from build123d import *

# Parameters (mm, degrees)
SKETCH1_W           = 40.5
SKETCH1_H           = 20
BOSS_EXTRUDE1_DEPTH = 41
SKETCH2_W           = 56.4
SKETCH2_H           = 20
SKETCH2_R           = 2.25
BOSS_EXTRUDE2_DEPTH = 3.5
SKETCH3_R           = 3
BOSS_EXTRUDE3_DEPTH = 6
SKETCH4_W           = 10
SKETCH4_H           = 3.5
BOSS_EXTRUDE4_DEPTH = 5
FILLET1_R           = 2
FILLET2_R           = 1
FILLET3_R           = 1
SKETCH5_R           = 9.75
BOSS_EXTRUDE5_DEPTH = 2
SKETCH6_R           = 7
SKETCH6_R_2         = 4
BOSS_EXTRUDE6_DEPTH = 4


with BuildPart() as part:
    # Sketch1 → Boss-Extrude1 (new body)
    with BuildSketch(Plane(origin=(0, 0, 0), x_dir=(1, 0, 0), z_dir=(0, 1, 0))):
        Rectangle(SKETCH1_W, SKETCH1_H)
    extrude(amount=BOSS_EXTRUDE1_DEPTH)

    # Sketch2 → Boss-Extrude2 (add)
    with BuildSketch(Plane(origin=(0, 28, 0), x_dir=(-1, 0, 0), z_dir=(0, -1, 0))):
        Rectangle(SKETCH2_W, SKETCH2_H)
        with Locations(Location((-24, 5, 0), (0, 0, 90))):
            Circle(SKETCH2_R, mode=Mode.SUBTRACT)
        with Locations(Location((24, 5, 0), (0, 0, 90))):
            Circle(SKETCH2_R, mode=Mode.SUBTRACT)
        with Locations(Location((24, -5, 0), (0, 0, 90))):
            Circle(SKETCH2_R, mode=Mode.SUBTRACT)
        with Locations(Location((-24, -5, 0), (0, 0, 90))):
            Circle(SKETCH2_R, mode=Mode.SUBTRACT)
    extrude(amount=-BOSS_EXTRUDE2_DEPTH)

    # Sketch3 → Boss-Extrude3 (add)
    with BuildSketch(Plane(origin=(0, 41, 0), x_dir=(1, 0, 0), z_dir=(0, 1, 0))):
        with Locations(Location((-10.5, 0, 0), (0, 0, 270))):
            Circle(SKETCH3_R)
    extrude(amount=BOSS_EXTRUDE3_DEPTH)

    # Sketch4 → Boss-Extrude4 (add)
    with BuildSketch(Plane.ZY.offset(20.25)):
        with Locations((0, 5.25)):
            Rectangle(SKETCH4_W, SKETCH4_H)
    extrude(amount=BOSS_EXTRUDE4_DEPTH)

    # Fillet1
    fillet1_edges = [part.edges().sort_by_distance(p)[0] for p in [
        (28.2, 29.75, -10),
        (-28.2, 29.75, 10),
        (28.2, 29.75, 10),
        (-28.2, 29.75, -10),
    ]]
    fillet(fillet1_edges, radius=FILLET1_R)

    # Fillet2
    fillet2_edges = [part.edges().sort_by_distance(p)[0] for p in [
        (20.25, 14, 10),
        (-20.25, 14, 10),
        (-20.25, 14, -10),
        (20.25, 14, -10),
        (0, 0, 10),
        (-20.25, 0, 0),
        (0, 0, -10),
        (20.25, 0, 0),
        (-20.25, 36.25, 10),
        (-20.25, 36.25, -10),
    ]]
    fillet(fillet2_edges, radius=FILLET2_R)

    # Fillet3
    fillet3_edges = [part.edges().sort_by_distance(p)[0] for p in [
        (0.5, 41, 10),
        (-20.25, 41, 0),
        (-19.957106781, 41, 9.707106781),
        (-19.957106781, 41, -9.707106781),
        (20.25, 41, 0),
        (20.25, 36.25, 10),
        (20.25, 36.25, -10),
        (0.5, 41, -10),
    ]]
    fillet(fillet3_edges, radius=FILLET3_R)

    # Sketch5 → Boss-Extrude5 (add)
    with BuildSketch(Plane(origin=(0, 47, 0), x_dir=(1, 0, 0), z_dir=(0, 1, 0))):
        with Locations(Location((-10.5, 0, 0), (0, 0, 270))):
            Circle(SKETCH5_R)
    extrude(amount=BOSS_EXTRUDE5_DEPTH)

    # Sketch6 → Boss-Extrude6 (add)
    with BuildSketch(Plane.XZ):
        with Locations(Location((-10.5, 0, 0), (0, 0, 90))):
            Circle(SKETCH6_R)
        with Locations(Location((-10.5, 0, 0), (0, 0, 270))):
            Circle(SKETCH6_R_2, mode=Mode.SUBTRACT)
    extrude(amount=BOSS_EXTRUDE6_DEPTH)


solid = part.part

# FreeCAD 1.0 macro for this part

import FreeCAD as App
import Part
import Sketcher

V = App.Vector


def edges_at(feature, points):
    """Names of the edges that pass closest to the given points."""
    edges = feature.Shape.Edges
    near = lambda p: min(range(len(edges)), key=lambda i: edges[i].distToShape(Part.Vertex(*p))[0])
    return sorted({f"Edge{near(p) + 1}" for p in points})

doc = App.newDocument("Part")
body = doc.addObject("PartDesign::Body", "Body")

# Sketch on XZ plane
sketch1 = doc.addObject("Sketcher::SketchObject", "Sketch")
body.addObject(sketch1)
sketch1.AttachmentSupport = (doc.XZ_Plane, [""])
sketch1.MapMode = "FlatFace"
sketch1.addGeometry([
    Part.LineSegment(V(-20, -10, 0), V(-20, 10, 0)),
    Part.LineSegment(V(-20, 10, 0), V(20, 10, 0)),
    Part.LineSegment(V(20, 10, 0), V(20, -10, 0)),
    Part.LineSegment(V(20, -10, 0), V(-20, -10, 0)),
], False)
sketch1.addConstraint([
    Sketcher.Constraint("Coincident", 0, 2, 1, 1),
    Sketcher.Constraint("Coincident", 1, 2, 2, 1),
    Sketcher.Constraint("Coincident", 2, 2, 3, 1),
    Sketcher.Constraint("Coincident", 3, 2, 0, 1),
    Sketcher.Constraint("Vertical", 0),
    Sketcher.Constraint("Horizontal", 1),
    Sketcher.Constraint("Vertical", 2),
    Sketcher.Constraint("Horizontal", 3),
    Sketcher.Constraint("Symmetric", 0, 2, 2, 2, -1, 1),
    Sketcher.Constraint("DistanceY", 0, 1, 0, 2, 20.0),
    Sketcher.Constraint("DistanceX", 1, 1, 1, 2, 40.5),
])
pad1 = doc.addObject("PartDesign::Pad", "Pad")
body.addObject(pad1)
pad1.Profile = sketch1
pad1.Length = 41
pad1.Reversed = True

# Sketch on XZ plane
sketch2 = doc.addObject("Sketcher::SketchObject", "Sketch001")
body.addObject(sketch2)
sketch2.AttachmentSupport = (doc.XZ_Plane, [""])
sketch2.MapMode = "FlatFace"
sketch2.AttachmentOffset = App.Placement(V(0, 0, -28), App.Rotation())
sketch2.addGeometry([
    Part.LineSegment(V(28.2, -10, 0), V(28.2, 10, 0)),  # 0
    Part.LineSegment(V(28.2, 10, 0), V(-28.2, 10, 0)),  # 1
    Part.LineSegment(V(-28.2, 10, 0), V(-28.2, -10, 0)),  # 2
    Part.LineSegment(V(-28.2, -10, 0), V(28.2, -10, 0)),  # 3
    Part.Circle(V(24, 5, 0), V(0, 0, 1), 2.2),  # 4
    Part.Circle(V(-24, 5, 0), V(0, 0, 1), 2.2),  # 5
    Part.Circle(V(24, -5, 0), V(0, 0, 1), 2.2),  # 6
    Part.Circle(V(-24, -5, 0), V(0, 0, 1), 2.2),  # 7
], False)
sketch2.addConstraint([
    Sketcher.Constraint("Coincident", 0, 2, 1, 1),
    Sketcher.Constraint("Coincident", 1, 2, 2, 1),
    Sketcher.Constraint("Coincident", 2, 2, 3, 1),
    Sketcher.Constraint("Coincident", 3, 2, 0, 1),
    Sketcher.Constraint("Vertical", 0),
    Sketcher.Constraint("Horizontal", 1),
    Sketcher.Constraint("Vertical", 2),
    Sketcher.Constraint("Horizontal", 3),
    Sketcher.Constraint("Equal", 4, 5),
    Sketcher.Constraint("Equal", 5, 6),
    Sketcher.Constraint("Equal", 6, 7),
    Sketcher.Constraint("Symmetric", 5, 3, 6, 3, -1, 1),
    Sketcher.Constraint("Symmetric", 4, 3, 7, 3, -1, 1),
    Sketcher.Constraint("Symmetric", 0, 2, 2, 2, -1, 1),
    Sketcher.Constraint("Symmetric", 4, 3, 5, 3, -2),
    Sketcher.Constraint("Diameter", 4, 4.5),
    Sketcher.Constraint("DistanceY", 0, 1, 0, 2, 20.0),
    Sketcher.Constraint("DistanceX", 1, 2, 1, 1, 56.4),
    Sketcher.Constraint("DistanceX", -1, 1, 4, 3, 24.0),
    Sketcher.Constraint("DistanceY", -1, 1, 4, 3, 5.0),
])
pad2 = doc.addObject("PartDesign::Pad", "Pad001")
body.addObject(pad2)
pad2.Profile = sketch2
pad2.Length = 3.5
pad2.Reversed = True

# Sketch on XZ plane
sketch3 = doc.addObject("Sketcher::SketchObject", "Sketch002")
body.addObject(sketch3)
sketch3.AttachmentSupport = (doc.XZ_Plane, [""])
sketch3.MapMode = "FlatFace"
sketch3.AttachmentOffset = App.Placement(V(0, 0, -41), App.Rotation())
sketch3.addGeometry(Part.Circle(V(-10.5, 0, 0), V(0, 0, 1), 3), False)
sketch3.addConstraint([
    Sketcher.Constraint("PointOnObject", 0, 3, -1),
    Sketcher.Constraint("Diameter", 0, 6.0),
    Sketcher.Constraint("DistanceX", 0, 3, -1, 1, 10.5),
])
pad3 = doc.addObject("PartDesign::Pad", "Pad002")
body.addObject(pad3)
pad3.Profile = sketch3
pad3.Length = 6
pad3.Reversed = True

# Sketch on YZ plane
sketch4 = doc.addObject("Sketcher::SketchObject", "Sketch003")
body.addObject(sketch4)
sketch4.AttachmentSupport = (doc.YZ_Plane, [""])
sketch4.MapMode = "FlatFace"
sketch4.AttachmentOffset = App.Placement(V(0, 0, -20.25), App.Rotation())
sketch4.addGeometry([
    Part.LineSegment(V(7, -5, 0), V(3.5, -5, 0)),
    Part.LineSegment(V(3.5, -5, 0), V(3.5, 5, 0)),
    Part.LineSegment(V(3.5, 5, 0), V(7, 5, 0)),
    Part.LineSegment(V(7, 5, 0), V(7, -5, 0)),
], False)
sketch4.addConstraint([
    Sketcher.Constraint("Coincident", 0, 2, 1, 1),
    Sketcher.Constraint("Coincident", 1, 2, 2, 1),
    Sketcher.Constraint("Coincident", 2, 2, 3, 1),
    Sketcher.Constraint("Coincident", 3, 2, 0, 1),
    Sketcher.Constraint("Horizontal", 0),
    Sketcher.Constraint("Vertical", 1),
    Sketcher.Constraint("Horizontal", 2),
    Sketcher.Constraint("Vertical", 3),
    Sketcher.Constraint("DistanceY", 1, 1, 1, 2, 10.0),
    Sketcher.Constraint("DistanceX", 0, 2, 0, 1, 3.5),
    Sketcher.Constraint("DistanceY", 0, 2, -1, 1, 5.0),
    Sketcher.Constraint("DistanceX", -1, 1, 2, 2, 7.0),
])
pad4 = doc.addObject("PartDesign::Pad", "Pad003")
body.addObject(pad4)
pad4.Profile = sketch4
pad4.Length = 5
pad4.Reversed = True
doc.recompute()

fillet = doc.addObject("PartDesign::Fillet", "Fillet")
body.addObject(fillet)
fillet.Base = (pad4, edges_at(pad4, [
    (28.2, 29.75, -10),
    (-28.2, 29.75, 10),
    (28.2, 29.75, 10),
    (-28.2, 29.75, -10),
]))
fillet.Radius = 2
doc.recompute()

fillet2 = doc.addObject("PartDesign::Fillet", "Fillet001")
body.addObject(fillet2)
fillet2.Base = (fillet, edges_at(fillet, [
    (20.25, 14, 10),
    (-20.25, 14, 10),
    (-20.25, 14, -10),
    (20.25, 14, -10),
    (0, 0, 10),
    (-20.25, 0, 0),
    (0, 0, -10),
    (20.25, 0, 0),
    (-20.25, 36.25, 10),
    (-20.25, 36.25, -10),
]))
fillet2.Radius = 1
doc.recompute()

fillet3 = doc.addObject("PartDesign::Fillet", "Fillet002")
body.addObject(fillet3)
fillet3.Base = (fillet2, edges_at(fillet2, [
    (0.5, 41, 10),
    (-20.25, 41, 0),
    (-19.957, 41, 9.707),
    (-19.957, 41, -9.707),
    (20.25, 41, 0),
    (20.25, 36.25, 10),
    (20.25, 36.25, -10),
    (0.5, 41, -10),
]))
fillet3.Radius = 1

# Sketch on XZ plane
sketch5 = doc.addObject("Sketcher::SketchObject", "Sketch004")
body.addObject(sketch5)
sketch5.AttachmentSupport = (doc.XZ_Plane, [""])
sketch5.MapMode = "FlatFace"
sketch5.AttachmentOffset = App.Placement(V(0, 0, -47), App.Rotation())
sketch5.addGeometry(Part.Circle(V(-10, 0, 0), V(0, 0, 1), 10), False)
sketch5.addConstraint([
    Sketcher.Constraint("PointOnObject", 0, 3, -1),
    Sketcher.Constraint("Diameter", 0, 19.5),
    Sketcher.Constraint("DistanceX", 0, 3, -1, 1, 10.5),
])
pad5 = doc.addObject("PartDesign::Pad", "Pad004")
body.addObject(pad5)
pad5.Profile = sketch5
pad5.Length = 2
pad5.Reversed = True

# Sketch on XZ plane
sketch6 = doc.addObject("Sketcher::SketchObject", "Sketch005")
body.addObject(sketch6)
sketch6.AttachmentSupport = (doc.XZ_Plane, [""])
sketch6.MapMode = "FlatFace"
sketch6.addGeometry([
    Part.Circle(V(-10.5, 0, 0), V(0, 0, 1), 7),
    Part.Circle(V(-10.5, 0, 0), V(0, 0, 1), 4),
], False)
sketch6.addConstraint([
    Sketcher.Constraint("Coincident", 1, 3, 0, 3),
    Sketcher.Constraint("PointOnObject", 0, 3, -1),
    Sketcher.Constraint("Diameter", 0, 14.0),
    Sketcher.Constraint("Diameter", 1, 8.0),
    Sketcher.Constraint("DistanceX", 0, 3, -1, 1, 10.5),
])
pad6 = doc.addObject("PartDesign::Pad", "Pad005")
body.addObject(pad6)
pad6.Profile = sketch6
pad6.Length = 4

doc.recompute()
